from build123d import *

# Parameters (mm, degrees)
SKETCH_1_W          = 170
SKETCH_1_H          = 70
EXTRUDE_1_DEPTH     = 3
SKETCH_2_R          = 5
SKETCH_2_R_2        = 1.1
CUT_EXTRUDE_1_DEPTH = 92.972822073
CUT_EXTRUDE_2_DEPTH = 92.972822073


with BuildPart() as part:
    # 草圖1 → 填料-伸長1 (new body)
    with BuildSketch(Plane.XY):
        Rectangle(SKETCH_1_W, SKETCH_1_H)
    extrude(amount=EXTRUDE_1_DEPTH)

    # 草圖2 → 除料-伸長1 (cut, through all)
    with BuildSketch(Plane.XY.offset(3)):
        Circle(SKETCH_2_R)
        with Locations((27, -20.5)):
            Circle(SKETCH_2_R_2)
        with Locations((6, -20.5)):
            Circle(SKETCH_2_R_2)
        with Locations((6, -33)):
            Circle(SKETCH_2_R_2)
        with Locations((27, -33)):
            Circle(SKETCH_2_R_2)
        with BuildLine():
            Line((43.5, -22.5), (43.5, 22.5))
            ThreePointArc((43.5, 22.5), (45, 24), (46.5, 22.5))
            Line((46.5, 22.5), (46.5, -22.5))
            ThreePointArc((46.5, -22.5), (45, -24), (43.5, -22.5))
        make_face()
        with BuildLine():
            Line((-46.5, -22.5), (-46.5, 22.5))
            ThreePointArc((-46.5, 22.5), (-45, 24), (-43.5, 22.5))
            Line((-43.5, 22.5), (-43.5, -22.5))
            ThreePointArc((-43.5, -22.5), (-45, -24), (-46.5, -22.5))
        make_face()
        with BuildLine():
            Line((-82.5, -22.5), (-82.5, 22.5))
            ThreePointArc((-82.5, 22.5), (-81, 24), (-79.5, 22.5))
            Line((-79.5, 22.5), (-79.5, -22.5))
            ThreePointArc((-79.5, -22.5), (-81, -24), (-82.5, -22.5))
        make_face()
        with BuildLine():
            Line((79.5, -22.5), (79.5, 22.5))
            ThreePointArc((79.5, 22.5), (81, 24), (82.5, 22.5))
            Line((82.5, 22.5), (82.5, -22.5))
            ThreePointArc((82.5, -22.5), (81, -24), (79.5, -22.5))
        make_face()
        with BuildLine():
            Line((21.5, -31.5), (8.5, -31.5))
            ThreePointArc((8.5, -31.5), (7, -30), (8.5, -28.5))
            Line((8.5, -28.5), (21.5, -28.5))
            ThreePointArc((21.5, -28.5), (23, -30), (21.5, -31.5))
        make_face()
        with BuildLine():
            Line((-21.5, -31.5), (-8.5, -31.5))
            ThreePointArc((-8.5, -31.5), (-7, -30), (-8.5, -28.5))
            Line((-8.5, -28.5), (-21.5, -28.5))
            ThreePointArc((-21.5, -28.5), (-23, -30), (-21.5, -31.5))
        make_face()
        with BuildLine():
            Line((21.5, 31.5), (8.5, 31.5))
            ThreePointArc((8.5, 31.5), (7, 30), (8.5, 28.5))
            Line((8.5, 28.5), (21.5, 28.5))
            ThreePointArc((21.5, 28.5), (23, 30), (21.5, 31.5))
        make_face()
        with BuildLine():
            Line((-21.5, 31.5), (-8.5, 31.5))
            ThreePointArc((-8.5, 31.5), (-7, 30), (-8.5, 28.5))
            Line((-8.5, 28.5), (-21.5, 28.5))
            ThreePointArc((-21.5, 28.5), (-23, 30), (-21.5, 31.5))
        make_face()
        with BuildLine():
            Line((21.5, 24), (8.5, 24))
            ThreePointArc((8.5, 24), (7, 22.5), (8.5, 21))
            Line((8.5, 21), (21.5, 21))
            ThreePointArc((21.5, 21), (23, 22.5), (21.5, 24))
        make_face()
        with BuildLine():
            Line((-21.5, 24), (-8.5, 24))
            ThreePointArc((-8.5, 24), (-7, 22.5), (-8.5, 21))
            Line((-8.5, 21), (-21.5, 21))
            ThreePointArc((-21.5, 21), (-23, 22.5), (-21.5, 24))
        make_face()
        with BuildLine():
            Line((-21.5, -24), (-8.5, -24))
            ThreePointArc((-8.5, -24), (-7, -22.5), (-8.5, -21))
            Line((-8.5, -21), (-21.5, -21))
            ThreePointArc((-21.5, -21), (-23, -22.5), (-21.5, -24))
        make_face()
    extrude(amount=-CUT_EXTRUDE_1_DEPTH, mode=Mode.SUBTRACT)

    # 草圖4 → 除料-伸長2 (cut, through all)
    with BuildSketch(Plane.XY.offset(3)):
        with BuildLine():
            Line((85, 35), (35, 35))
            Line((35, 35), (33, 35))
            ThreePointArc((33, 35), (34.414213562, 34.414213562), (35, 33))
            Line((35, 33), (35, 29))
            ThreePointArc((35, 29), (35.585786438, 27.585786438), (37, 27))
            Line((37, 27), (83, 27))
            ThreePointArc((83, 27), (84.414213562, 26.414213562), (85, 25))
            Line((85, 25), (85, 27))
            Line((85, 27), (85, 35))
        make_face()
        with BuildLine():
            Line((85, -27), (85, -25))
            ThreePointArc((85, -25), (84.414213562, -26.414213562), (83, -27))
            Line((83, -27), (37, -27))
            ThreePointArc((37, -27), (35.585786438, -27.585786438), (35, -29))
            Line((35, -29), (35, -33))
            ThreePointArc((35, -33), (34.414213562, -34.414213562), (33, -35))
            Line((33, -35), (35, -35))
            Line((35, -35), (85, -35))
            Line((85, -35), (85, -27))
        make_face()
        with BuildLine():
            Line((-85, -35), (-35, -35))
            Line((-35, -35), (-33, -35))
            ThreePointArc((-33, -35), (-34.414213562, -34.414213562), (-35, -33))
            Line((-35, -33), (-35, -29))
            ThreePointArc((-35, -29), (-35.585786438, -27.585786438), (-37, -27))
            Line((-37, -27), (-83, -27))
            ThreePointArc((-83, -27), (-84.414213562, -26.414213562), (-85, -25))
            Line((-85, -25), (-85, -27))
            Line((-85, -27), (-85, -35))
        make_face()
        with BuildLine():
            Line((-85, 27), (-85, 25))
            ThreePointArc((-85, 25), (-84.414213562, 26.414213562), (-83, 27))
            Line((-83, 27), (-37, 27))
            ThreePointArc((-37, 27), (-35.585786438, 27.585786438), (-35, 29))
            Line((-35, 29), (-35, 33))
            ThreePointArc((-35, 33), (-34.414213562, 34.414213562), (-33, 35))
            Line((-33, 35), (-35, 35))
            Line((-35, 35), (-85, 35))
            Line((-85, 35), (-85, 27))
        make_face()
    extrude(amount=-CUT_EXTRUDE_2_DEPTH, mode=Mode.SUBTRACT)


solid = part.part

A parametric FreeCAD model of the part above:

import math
import FreeCAD as App
import Part
import Sketcher

V = App.Vector


def add_polygon(sketch, points):
    """Adds a closed chain of lines whose ends are joined by coincident constraints."""
    first, n = sketch.GeometryCount, len(points)
    for a, b in zip(points, points[1:] + points[:1]):
        sketch.addGeometry(Part.LineSegment(App.Vector(*a, 0), App.Vector(*b, 0)), False)
    for i in range(n):
        sketch.addConstraint(Sketcher.Constraint("Coincident", first + i, 2, first + (i + 1) % n, 1))

doc = App.newDocument("Part")
body = doc.addObject("PartDesign::Body", "Body")

# Sketch on XY plane
sketch1 = body.newObject("Sketcher::SketchObject", "Sketch")
sketch1.AttachmentSupport = (doc.getObject("XY_Plane"), [""])
sketch1.MapMode = "FlatFace"
add_polygon(sketch1, [(-85, 35), (-85, -35), (85, -35), (85, 35)])  # lines 0-3
sketch1.addConstraint([
    Sketcher.Constraint("Vertical", 0),
    Sketcher.Constraint("Horizontal", 1),
    Sketcher.Constraint("Vertical", 2),
    Sketcher.Constraint("Horizontal", 3),
    Sketcher.Constraint("Symmetric", 0, 2, 2, 2, -1, 1),
    Sketcher.Constraint("DistanceX", 1, 1, 1, 2, 170.0),
    Sketcher.Constraint("DistanceY", 0, 2, 0, 1, 70.0),
])
pad1 = body.newObject("PartDesign::Pad", "Pad")
pad1.Profile = sketch1
pad1.Length = 3

# Sketch on XY plane
sketch2 = body.newObject("Sketcher::SketchObject", "Sketch001")
sketch2.AttachmentSupport = (doc.getObject("XY_Plane"), [""])
sketch2.MapMode = "FlatFace"
sketch2.AttachmentOffset = App.Placement(V(0, 0, 3), App.Rotation())
sketch2.addGeometry([
    Part.Circle(V(0, 0, 0), V(0, 0, 1), 5),  # 0
    Part.Circle(V(27, -20.5, 0), V(0, 0, 1), 1.1),  # 1
    Part.Circle(V(6, -20.5, 0), V(0, 0, 1), 1.1),  # 2
    Part.Circle(V(6, -33, 0), V(0, 0, 1), 1.1),  # 3
    Part.Circle(V(27, -33, 0), V(0, 0, 1), 1.1),  # 4
    Part.LineSegment(V(43.5, 22.5, 0), V(43.5, -22.5, 0)),  # 5
    Part.ArcOfCircle(Part.Circle(V(45, -22.5, 0), V(0, 0, 1), 1.5), math.radians(180), math.radians(360)),  # 6
    Part.LineSegment(V(46.5, -22.5, 0), V(46.5, 22.5, 0)),  # 7
    Part.ArcOfCircle(Part.Circle(V(45, 22.5, 0), V(0, 0, 1), 1.5), math.radians(0), math.radians(180)),  # 8
    Part.LineSegment(V(-46.5, 22.5, 0), V(-46.5, -22.5, 0)),  # 9
    Part.ArcOfCircle(Part.Circle(V(-45, -22.5, 0), V(0, 0, 1), 1.5), math.radians(180), math.radians(360)),  # 10
    Part.LineSegment(V(-43.5, -22.5, 0), V(-43.5, 22.5, 0)),  # 11
    Part.ArcOfCircle(Part.Circle(V(-45, 22.5, 0), V(0, 0, 1), 1.5), math.radians(0), math.radians(180)),  # 12
    Part.LineSegment(V(-82.5, 22.5, 0), V(-82.5, -22.5, 0)),  # 13
    Part.ArcOfCircle(Part.Circle(V(-81, -22.5, 0), V(0, 0, 1), 1.5), math.radians(180), math.radians(360)),  # 14
    Part.LineSegment(V(-79.5, -22.5, 0), V(-79.5, 22.5, 0)),  # 15
    Part.ArcOfCircle(Part.Circle(V(-81, 22.5, 0), V(0, 0, 1), 1.5), math.radians(0), math.radians(180)),  # 16
    Part.LineSegment(V(79.5, 22.5, 0), V(79.5, -22.5, 0)),  # 17
    Part.ArcOfCircle(Part.Circle(V(81, -22.5, 0), V(0, 0, 1), 1.5), math.radians(180), math.radians(360)),  # 18
    Part.LineSegment(V(82.5, -22.5, 0), V(82.5, 22.5, 0)),  # 19
    Part.ArcOfCircle(Part.Circle(V(81, 22.5, 0), V(0, 0, 1), 1.5), math.radians(0), math.radians(180)),  # 20
    Part.LineSegment(V(8.5, -31.5, 0), V(21.5, -31.5, 0)),  # 21
    Part.ArcOfCircle(Part.Circle(V(21.5, -30, 0), V(0, 0, 1), 1.5), math.radians(-90), math.radians(90)),  # 22
    Part.LineSegment(V(21.5, -28.5, 0), V(8.5, -28.5, 0)),  # 23
    Part.ArcOfCircle(Part.Circle(V(8.5, -30, 0), V(0, 0, 1), 1.5), math.radians(90), math.radians(270)),  # 24
    Part.LineSegment(V(-21.5, -31.5, 0), V(-8.5, -31.5, 0)),  # 25
    Part.ArcOfCircle(Part.Circle(V(-8.5, -30, 0), V(0, 0, 1), 1.5), math.radians(-90), math.radians(90)),  # 26
    Part.LineSegment(V(-8.5, -28.5, 0), V(-21.5, -28.5, 0)),  # 27
    Part.ArcOfCircle(Part.Circle(V(-21.5, -30, 0), V(0, 0, 1), 1.5), math.radians(90), math.radians(270)),  # 28
    Part.LineSegment(V(21.5, 31.5, 0), V(8.5, 31.5, 0)),  # 29
    Part.ArcOfCircle(Part.Circle(V(8.5, 30, 0), V(0, 0, 1), 1.5), math.radians(90), math.radians(270)),  # 30
    Part.LineSegment(V(8.5, 28.5, 0), V(21.5, 28.5, 0)),  # 31
    Part.ArcOfCircle(Part.Circle(V(21.5, 30, 0), V(0, 0, 1), 1.5), math.radians(-90), math.radians(90)),  # 32
    Part.LineSegment(V(-8.5, 31.5, 0), V(-21.5, 31.5, 0)),  # 33
    Part.ArcOfCircle(Part.Circle(V(-21.5, 30, 0), V(0, 0, 1), 1.5), math.radians(90), math.radians(270)),  # 34
    Part.LineSegment(V(-21.5, 28.5, 0), V(-8.5, 28.5, 0)),  # 35
    Part.ArcOfCircle(Part.Circle(V(-8.5, 30, 0), V(0, 0, 1), 1.5), math.radians(-90), math.radians(90)),  # 36
    Part.LineSegment(V(21.5, 24, 0), V(8.5, 24, 0)),  # 37
    Part.ArcOfCircle(Part.Circle(V(8.5, 22.5, 0), V(0, 0, 1), 1.5), math.radians(90), math.radians(270)),  # 38
    Part.LineSegment(V(8.5, 21, 0), V(21.5, 21, 0)),  # 39
    Part.ArcOfCircle(Part.Circle(V(21.5, 22.5, 0), V(0, 0, 1), 1.5), math.radians(-90), math.radians(90)),  # 40
    Part.LineSegment(V(-8.5, 24, 0), V(-21.5, 24, 0)),  # 41
    Part.ArcOfCircle(Part.Circle(V(-21.5, 22.5, 0), V(0, 0, 1), 1.5), math.radians(90), math.radians(270)),  # 42
    Part.LineSegment(V(-21.5, 21, 0), V(-8.5, 21, 0)),  # 43
    Part.ArcOfCircle(Part.Circle(V(-8.5, 22.5, 0), V(0, 0, 1), 1.5), math.radians(-90), math.radians(90)),  # 44
    Part.LineSegment(V(-21.5, -24, 0), V(-8.5, -24, 0)),  # 45
    Part.ArcOfCircle(Part.Circle(V(-8.5, -22.5, 0), V(0, 0, 1), 1.5), math.radians(-90), math.radians(90)),  # 46
    Part.LineSegment(V(-8.5, -21, 0), V(-21.5, -21, 0)),  # 47
    Part.ArcOfCircle(Part.Circle(V(-21.5, -22.5, 0), V(0, 0, 1), 1.5), math.radians(90), math.radians(270)),  # 48
], False)
sketch2.addConstraint([
    Sketcher.Constraint("Tangent", 5, 2, 6, 1),
    Sketcher.Constraint("Tangent", 6, 2, 7, 1),
    Sketcher.Constraint("Tangent", 7, 2, 8, 1),
    Sketcher.Constraint("Tangent", 8, 2, 5, 1),
    Sketcher.Constraint("Tangent", 9, 2, 10, 1),
    Sketcher.Constraint("Tangent", 10, 2, 11, 1),
    Sketcher.Constraint("Tangent", 11, 2, 12, 1),
    Sketcher.Constraint("Tangent", 12, 2, 9, 1),
    Sketcher.Constraint("Tangent", 13, 2, 14, 1),
    Sketcher.Constraint("Tangent", 14, 2, 15, 1),
    Sketcher.Constraint("Tangent", 15, 2, 16, 1),
    Sketcher.Constraint("Tangent", 16, 2, 13, 1),
    Sketcher.Constraint("Tangent", 17, 2, 18, 1),
    Sketcher.Constraint("Tangent", 18, 2, 19, 1),
    Sketcher.Constraint("Tangent", 19, 2, 20, 1),
    Sketcher.Constraint("Tangent", 20, 2, 17, 1),
    Sketcher.Constraint("Tangent", 21, 2, 22, 1),
    Sketcher.Constraint("Tangent", 22, 2, 23, 1),
    Sketcher.Constraint("Tangent", 23, 2, 24, 1),
    Sketcher.Constraint("Tangent", 24, 2, 21, 1),
    Sketcher.Constraint("Tangent", 25, 2, 26, 1),
    Sketcher.Constraint("Tangent", 26, 2, 27, 1),
    Sketcher.Constraint("Tangent", 27, 2, 28, 1),
    Sketcher.Constraint("Tangent", 28, 2, 25, 1),
    Sketcher.Constraint("Tangent", 29, 2, 30, 1),
    Sketcher.Constraint("Tangent", 30, 2, 31, 1),
    Sketcher.Constraint("Tangent", 31, 2, 32, 1),
    Sketcher.Constraint("Tangent", 32, 2, 29, 1),
    Sketcher.Constraint("Tangent", 33, 2, 34, 1),
    Sketcher.Constraint("Tangent", 34, 2, 35, 1),
    Sketcher.Constraint("Tangent", 35, 2, 36, 1),
    Sketcher.Constraint("Tangent", 36, 2, 33, 1),
    Sketcher.Constraint("Tangent", 37, 2, 38, 1),
    Sketcher.Constraint("Tangent", 38, 2, 39, 1),
    Sketcher.Constraint("Tangent", 39, 2, 40, 1),
    Sketcher.Constraint("Tangent", 40, 2, 37, 1),
    Sketcher.Constraint("Tangent", 41, 2, 42, 1),
    Sketcher.Constraint("Tangent", 42, 2, 43, 1),
    Sketcher.Constraint("Tangent", 43, 2, 44, 1),
    Sketcher.Constraint("Tangent", 44, 2, 41, 1),
    Sketcher.Constraint("Tangent", 45, 2, 46, 1),
    Sketcher.Constraint("Tangent", 46, 2, 47, 1),
    Sketcher.Constraint("Tangent", 47, 2, 48, 1),
    Sketcher.Constraint("Tangent", 48, 2, 45, 1),
    Sketcher.Constraint("Vertical", 5),
    Sketcher.Constraint("Vertical", 7),
    Sketcher.Constraint("Vertical", 9),
    Sketcher.Constraint("Vertical", 11),
    Sketcher.Constraint("Vertical", 13),
    Sketcher.Constraint("Vertical", 15),
    Sketcher.Constraint("Vertical", 17),
    Sketcher.Constraint("Vertical", 19),
    Sketcher.Constraint("Horizontal", 21),
    Sketcher.Constraint("Horizontal", 23),
    Sketcher.Constraint("Horizontal", 25),
    Sketcher.Constraint("Horizontal", 27),
    Sketcher.Constraint("Horizontal", 29),
    Sketcher.Constraint("Horizontal", 31),
    Sketcher.Constraint("Horizontal", 33),
    Sketcher.Constraint("Horizontal", 35),
    Sketcher.Constraint("Horizontal", 37),
    Sketcher.Constraint("Horizontal", 39),
    Sketcher.Constraint("Horizontal", 41),
    Sketcher.Constraint("Horizontal", 43),
    Sketcher.Constraint("Horizontal", 45),
    Sketcher.Constraint("Horizontal", 47),
    Sketcher.Constraint("Coincident", 0, 3, -1, 1),
    Sketcher.Constraint("Equal", 1, 2),
    Sketcher.Constraint("Equal", 2, 3),
    Sketcher.Constraint("Equal", 3, 4),
    Sketcher.Constraint("Equal", 8, 10),
    Sketcher.Constraint("Equal", 12, 14),
    Sketcher.Constraint("Equal", 16, 18),
    Sketcher.Constraint("Equal", 20, 22),
    Sketcher.Constraint("Equal", 24, 26),
    Sketcher.Constraint("Equal", 28, 30),
    Sketcher.Constraint("Equal", 32, 34),
    Sketcher.Constraint("Equal", 36, 38),
    Sketcher.Constraint("Equal", 40, 42),
    Sketcher.Constraint("Equal", 44, 46),
    Sketcher.Constraint("Symmetric", 8, 3, 10, 3, -1, 1),
    Sketcher.Constraint("Symmetric", 16, 3, 18, 3, -1, 1),
    Sketcher.Constraint("Symmetric", 26, 3, 30, 3, -1, 1),
    Sketcher.Constraint("Symmetric", 22, 3, 34, 3, -1, 1),
    Sketcher.Constraint("Symmetric", 38, 3, 46, 3, -1, 1),
    Sketcher.Constraint("Symmetric", 24, 3, 26, 3, -2),
    Sketcher.Constraint("Symmetric", 40, 3, 42, 3, -2),
    Sketcher.Constraint("Horizontal", 1, 3, 2, 3),
    Sketcher.Constraint("Horizontal", 3, 3, 4, 3),
    Sketcher.Constraint("Horizontal", 6, 3, 10, 3),
    Sketcher.Constraint("Horizontal", 8, 3, 12, 3),
    Sketcher.Constraint("Horizontal", 10, 3, 14, 3),
    Sketcher.Constraint("Horizontal", 12, 3, 16, 3),
    Sketcher.Constraint("Horizontal", 16, 3, 20, 3),
    Sketcher.Constraint("Horizontal", 20, 3, 38, 3),
    Sketcher.Constraint("Vertical", 2, 3, 3, 3),
    Sketcher.Constraint("Vertical", 1, 3, 4, 3),
    Sketcher.Constraint("Vertical", 22, 3, 32, 3),
    Sketcher.Constraint("Vertical", 28, 3, 34, 3),
    Sketcher.Constraint("Vertical", 26, 3, 36, 3),
    Sketcher.Constraint("Vertical", 30, 3, 38, 3),
    Sketcher.Constraint("Vertical", 32, 3, 40, 3),
    Sketcher.Constraint("Vertical", 36, 3, 44, 3),
    Sketcher.Constraint("Vertical", 42, 3, 48, 3),
    Sketcher.Constraint("Diameter", 0, 10.0),
    Sketcher.Constraint("Diameter", 1, 2.2),
    Sketcher.Constraint("Radius", 6, 1.5),
    Sketcher.Constraint("DistanceX", 21, 1, 21, 2, 13.0),
    Sketcher.Constraint("DistanceY", 5, 2, 5, 1, 45.0),
    Sketcher.Constraint("DistanceX", -1, 1, 1, 3, 27.0),
    Sketcher.Constraint("DistanceX", -1, 1, 2, 3, 6.0),
    Sketcher.Constraint("DistanceY", 3, 3, -1, 1, 33.0),
    Sketcher.Constraint("DistanceX", -1, 1, 6, 3, 45.0),
    Sketcher.Constraint("DistanceX", 14, 3, -1, 1, 81.0),
    Sketcher.Constraint("DistanceY", 22, 3, -1, 1, 30.0),
    Sketcher.Constraint("DistanceY", 1, 3, -1, 1, 20.5),
    Sketcher.Constraint("DistanceX", -1, 1, 22, 3, 21.5),
])
pocket1 = body.newObject("PartDesign::Pocket", "Pocket")
pocket1.Profile = sketch2
pocket1.Type = "ThroughAll"

# Sketch on XY plane
sketch3 = body.newObject("Sketcher::SketchObject", "Sketch002")
sketch3.AttachmentSupport = (doc.getObject("XY_Plane"), [""])
sketch3.MapMode = "FlatFace"
sketch3.AttachmentOffset = App.Placement(V(0, 0, 3), App.Rotation())
sketch3.addGeometry([
    Part.LineSegment(V(85, 35, 0), V(33, 35, 0)),  # 0
    Part.ArcOfCircle(Part.Circle(V(33, 33, 0), V(0, 0, 1), 2), math.radians(0), math.radians(90)),  # 1
    Part.LineSegment(V(35, 33, 0), V(35, 29, 0)),  # 2
    Part.ArcOfCircle(Part.Circle(V(37, 29, 0), V(0, 0, 1), 2), math.radians(-180), math.radians(-90)),  # 3
    Part.LineSegment(V(37, 27, 0), V(83, 27, 0)),  # 4
    Part.ArcOfCircle(Part.Circle(V(83, 25, 0), V(0, 0, 1), 2), math.radians(0), math.radians(90)),  # 5
    Part.LineSegment(V(85, 25, 0), V(85, 35, 0)),  # 6
    Part.ArcOfCircle(Part.Circle(V(83, -25, 0), V(0, 0, 1), 2), math.radians(-90), math.radians(0)),  # 7
    Part.LineSegment(V(83, -27, 0), V(37, -27, 0)),  # 8
    Part.ArcOfCircle(Part.Circle(V(37, -29, 0), V(0, 0, 1), 2), math.radians(90), math.radians(180)),  # 9
    Part.LineSegment(V(35, -29, 0), V(35, -33, 0)),  # 10
    Part.ArcOfCircle(Part.Circle(V(33, -33, 0), V(0, 0, 1), 2), math.radians(-90), math.radians(0)),  # 11
    Part.LineSegment(V(33, -35, 0), V(85, -35, 0)),  # 12
    Part.LineSegment(V(85, -35, 0), V(85, -25, 0)),  # 13
    Part.LineSegment(V(-85, -35, 0), V(-33, -35, 0)),  # 14
    Part.ArcOfCircle(Part.Circle(V(-33, -33, 0), V(0, 0, 1), 2), math.radians(-180), math.radians(-90)),  # 15
    Part.LineSegment(V(-35, -33, 0), V(-35, -29, 0)),  # 16
    Part.ArcOfCircle(Part.Circle(V(-37, -29, 0), V(0, 0, 1), 2), math.radians(0), math.radians(90)),  # 17
    Part.LineSegment(V(-37, -27, 0), V(-83, -27, 0)),  # 18
    Part.ArcOfCircle(Part.Circle(V(-83, -25, 0), V(0, 0, 1), 2), math.radians(-180), math.radians(-90)),  # 19
    Part.LineSegment(V(-85, -25, 0), V(-85, -35, 0)),  # 20
    Part.ArcOfCircle(Part.Circle(V(-83, 25, 0), V(0, 0, 1), 2), math.radians(90), math.radians(180)),  # 21
    Part.LineSegment(V(-83, 27, 0), V(-37, 27, 0)),  # 22
    Part.ArcOfCircle(Part.Circle(V(-37, 29, 0), V(0, 0, 1), 2), math.radians(-90), math.radians(0)),  # 23
    Part.LineSegment(V(-35, 29, 0), V(-35, 33, 0)),  # 24
    Part.ArcOfCircle(Part.Circle(V(-33, 33, 0), V(0, 0, 1), 2), math.radians(90), math.radians(180)),  # 25
    Part.LineSegment(V(-33, 35, 0), V(-85, 35, 0)),  # 26
    Part.LineSegment(V(-85, 35, 0), V(-85, 25, 0)),  # 27
], False)
sketch3.addConstraint([
    Sketcher.Constraint("Tangent", 0, 2, 1, 2),
    Sketcher.Constraint("Tangent", 1, 1, 2, 1),
    Sketcher.Constraint("Tangent", 2, 2, 3, 1),
    Sketcher.Constraint("Tangent", 3, 2, 4, 1),
    Sketcher.Constraint("Tangent", 4, 2, 5, 2),
    Sketcher.Constraint("Tangent", 5, 1, 6, 1),
    Sketcher.Constraint("Coincident", 6, 2, 0, 1),
    Sketcher.Constraint("Tangent", 7, 1, 8, 1),
    Sketcher.Constraint("Tangent", 8, 2, 9, 1),
    Sketcher.Constraint("Tangent", 9, 2, 10, 1),
    Sketcher.Constraint("Tangent", 10, 2, 11, 2),
    Sketcher.Constraint("Tangent", 11, 1, 12, 1),
    Sketcher.Constraint("Coincident", 12, 2, 13, 1),
    Sketcher.Constraint("Tangent", 13, 2, 7, 2),
    Sketcher.Constraint("Tangent", 14, 2, 15, 2),
    Sketcher.Constraint("Tangent", 15, 1, 16, 1),
    Sketcher.Constraint("Tangent", 16, 2, 17, 1),
    Sketcher.Constraint("Tangent", 17, 2, 18, 1),
    Sketcher.Constraint("Tangent", 18, 2, 19, 2),
    Sketcher.Constraint("Tangent", 19, 1, 20, 1),
    Sketcher.Constraint("Coincident", 20, 2, 14, 1),
    Sketcher.Constraint("Tangent", 21, 1, 22, 1),
    Sketcher.Constraint("Tangent", 22, 2, 23, 1),
    Sketcher.Constraint("Tangent", 23, 2, 24, 1),
    Sketcher.Constraint("Tangent", 24, 2, 25, 2),
    Sketcher.Constraint("Tangent", 25, 1, 26, 1),
    Sketcher.Constraint("Coincident", 26, 2, 27, 1),
    Sketcher.Constraint("Tangent", 27, 2, 21, 2),
    Sketcher.Constraint("Horizontal", 0),
    Sketcher.Constraint("Vertical", 2),
    Sketcher.Constraint("Horizontal", 4),
    Sketcher.Constraint("Vertical", 6),
    Sketcher.Constraint("Horizontal", 8),
    Sketcher.Constraint("Vertical", 10),
    Sketcher.Constraint("Horizontal", 12),
    Sketcher.Constraint("Vertical", 13),
    Sketcher.Constraint("Horizontal", 14),
    Sketcher.Constraint("Vertical", 16),
    Sketcher.Constraint("Horizontal", 18),
    Sketcher.Constraint("Vertical", 20),
    Sketcher.Constraint("Horizontal", 22),
    Sketcher.Constraint("Vertical", 24),
    Sketcher.Constraint("Horizontal", 26),
    Sketcher.Constraint("Vertical", 27),
    Sketcher.Constraint("Equal", 1, 3),
    Sketcher.Constraint("Equal", 3, 5),
    Sketcher.Constraint("Equal", 5, 7),
    Sketcher.Constraint("Equal", 7, 9),
    Sketcher.Constraint("Equal", 9, 11),
    Sketcher.Constraint("Equal", 11, 15),
    Sketcher.Constraint("Equal", 15, 17),
    Sketcher.Constraint("Equal", 17, 19),
    Sketcher.Constraint("Equal", 19, 21),
    Sketcher.Constraint("Equal", 21, 23),
    Sketcher.Constraint("Equal", 23, 25),
    Sketcher.Constraint("Symmetric", 1, 3, 15, 3, -1, 1),
    Sketcher.Constraint("Symmetric", 5, 3, 19, 3, -1, 1),
    Sketcher.Constraint("Symmetric", 7, 3, 21, 3, -1, 1),
    Sketcher.Constraint("Symmetric", 11, 3, 25, 3, -1, 1),
    Sketcher.Constraint("Symmetric", 11, 3, 15, 3, -2),
    Sketcher.Constraint("Symmetric", 7, 3, 19, 3, -2),
    Sketcher.Constraint("Radius", 1, 2.0),
    Sketcher.Constraint("DistanceX", 0, 2, 0, 1, 52.0),
    Sketcher.Constraint("DistanceY", 2, 2, 2, 1, 4.0),
    Sketcher.Constraint("DistanceX", -1, 1, 1, 3, 33.0),
    Sketcher.Constraint("DistanceY", -1, 1, 1, 3, 33.0),
])
pocket2 = body.newObject("PartDesign::Pocket", "Pocket001")
pocket2.Profile = sketch3
pocket2.Type = "ThroughAll"

doc.recompute()
